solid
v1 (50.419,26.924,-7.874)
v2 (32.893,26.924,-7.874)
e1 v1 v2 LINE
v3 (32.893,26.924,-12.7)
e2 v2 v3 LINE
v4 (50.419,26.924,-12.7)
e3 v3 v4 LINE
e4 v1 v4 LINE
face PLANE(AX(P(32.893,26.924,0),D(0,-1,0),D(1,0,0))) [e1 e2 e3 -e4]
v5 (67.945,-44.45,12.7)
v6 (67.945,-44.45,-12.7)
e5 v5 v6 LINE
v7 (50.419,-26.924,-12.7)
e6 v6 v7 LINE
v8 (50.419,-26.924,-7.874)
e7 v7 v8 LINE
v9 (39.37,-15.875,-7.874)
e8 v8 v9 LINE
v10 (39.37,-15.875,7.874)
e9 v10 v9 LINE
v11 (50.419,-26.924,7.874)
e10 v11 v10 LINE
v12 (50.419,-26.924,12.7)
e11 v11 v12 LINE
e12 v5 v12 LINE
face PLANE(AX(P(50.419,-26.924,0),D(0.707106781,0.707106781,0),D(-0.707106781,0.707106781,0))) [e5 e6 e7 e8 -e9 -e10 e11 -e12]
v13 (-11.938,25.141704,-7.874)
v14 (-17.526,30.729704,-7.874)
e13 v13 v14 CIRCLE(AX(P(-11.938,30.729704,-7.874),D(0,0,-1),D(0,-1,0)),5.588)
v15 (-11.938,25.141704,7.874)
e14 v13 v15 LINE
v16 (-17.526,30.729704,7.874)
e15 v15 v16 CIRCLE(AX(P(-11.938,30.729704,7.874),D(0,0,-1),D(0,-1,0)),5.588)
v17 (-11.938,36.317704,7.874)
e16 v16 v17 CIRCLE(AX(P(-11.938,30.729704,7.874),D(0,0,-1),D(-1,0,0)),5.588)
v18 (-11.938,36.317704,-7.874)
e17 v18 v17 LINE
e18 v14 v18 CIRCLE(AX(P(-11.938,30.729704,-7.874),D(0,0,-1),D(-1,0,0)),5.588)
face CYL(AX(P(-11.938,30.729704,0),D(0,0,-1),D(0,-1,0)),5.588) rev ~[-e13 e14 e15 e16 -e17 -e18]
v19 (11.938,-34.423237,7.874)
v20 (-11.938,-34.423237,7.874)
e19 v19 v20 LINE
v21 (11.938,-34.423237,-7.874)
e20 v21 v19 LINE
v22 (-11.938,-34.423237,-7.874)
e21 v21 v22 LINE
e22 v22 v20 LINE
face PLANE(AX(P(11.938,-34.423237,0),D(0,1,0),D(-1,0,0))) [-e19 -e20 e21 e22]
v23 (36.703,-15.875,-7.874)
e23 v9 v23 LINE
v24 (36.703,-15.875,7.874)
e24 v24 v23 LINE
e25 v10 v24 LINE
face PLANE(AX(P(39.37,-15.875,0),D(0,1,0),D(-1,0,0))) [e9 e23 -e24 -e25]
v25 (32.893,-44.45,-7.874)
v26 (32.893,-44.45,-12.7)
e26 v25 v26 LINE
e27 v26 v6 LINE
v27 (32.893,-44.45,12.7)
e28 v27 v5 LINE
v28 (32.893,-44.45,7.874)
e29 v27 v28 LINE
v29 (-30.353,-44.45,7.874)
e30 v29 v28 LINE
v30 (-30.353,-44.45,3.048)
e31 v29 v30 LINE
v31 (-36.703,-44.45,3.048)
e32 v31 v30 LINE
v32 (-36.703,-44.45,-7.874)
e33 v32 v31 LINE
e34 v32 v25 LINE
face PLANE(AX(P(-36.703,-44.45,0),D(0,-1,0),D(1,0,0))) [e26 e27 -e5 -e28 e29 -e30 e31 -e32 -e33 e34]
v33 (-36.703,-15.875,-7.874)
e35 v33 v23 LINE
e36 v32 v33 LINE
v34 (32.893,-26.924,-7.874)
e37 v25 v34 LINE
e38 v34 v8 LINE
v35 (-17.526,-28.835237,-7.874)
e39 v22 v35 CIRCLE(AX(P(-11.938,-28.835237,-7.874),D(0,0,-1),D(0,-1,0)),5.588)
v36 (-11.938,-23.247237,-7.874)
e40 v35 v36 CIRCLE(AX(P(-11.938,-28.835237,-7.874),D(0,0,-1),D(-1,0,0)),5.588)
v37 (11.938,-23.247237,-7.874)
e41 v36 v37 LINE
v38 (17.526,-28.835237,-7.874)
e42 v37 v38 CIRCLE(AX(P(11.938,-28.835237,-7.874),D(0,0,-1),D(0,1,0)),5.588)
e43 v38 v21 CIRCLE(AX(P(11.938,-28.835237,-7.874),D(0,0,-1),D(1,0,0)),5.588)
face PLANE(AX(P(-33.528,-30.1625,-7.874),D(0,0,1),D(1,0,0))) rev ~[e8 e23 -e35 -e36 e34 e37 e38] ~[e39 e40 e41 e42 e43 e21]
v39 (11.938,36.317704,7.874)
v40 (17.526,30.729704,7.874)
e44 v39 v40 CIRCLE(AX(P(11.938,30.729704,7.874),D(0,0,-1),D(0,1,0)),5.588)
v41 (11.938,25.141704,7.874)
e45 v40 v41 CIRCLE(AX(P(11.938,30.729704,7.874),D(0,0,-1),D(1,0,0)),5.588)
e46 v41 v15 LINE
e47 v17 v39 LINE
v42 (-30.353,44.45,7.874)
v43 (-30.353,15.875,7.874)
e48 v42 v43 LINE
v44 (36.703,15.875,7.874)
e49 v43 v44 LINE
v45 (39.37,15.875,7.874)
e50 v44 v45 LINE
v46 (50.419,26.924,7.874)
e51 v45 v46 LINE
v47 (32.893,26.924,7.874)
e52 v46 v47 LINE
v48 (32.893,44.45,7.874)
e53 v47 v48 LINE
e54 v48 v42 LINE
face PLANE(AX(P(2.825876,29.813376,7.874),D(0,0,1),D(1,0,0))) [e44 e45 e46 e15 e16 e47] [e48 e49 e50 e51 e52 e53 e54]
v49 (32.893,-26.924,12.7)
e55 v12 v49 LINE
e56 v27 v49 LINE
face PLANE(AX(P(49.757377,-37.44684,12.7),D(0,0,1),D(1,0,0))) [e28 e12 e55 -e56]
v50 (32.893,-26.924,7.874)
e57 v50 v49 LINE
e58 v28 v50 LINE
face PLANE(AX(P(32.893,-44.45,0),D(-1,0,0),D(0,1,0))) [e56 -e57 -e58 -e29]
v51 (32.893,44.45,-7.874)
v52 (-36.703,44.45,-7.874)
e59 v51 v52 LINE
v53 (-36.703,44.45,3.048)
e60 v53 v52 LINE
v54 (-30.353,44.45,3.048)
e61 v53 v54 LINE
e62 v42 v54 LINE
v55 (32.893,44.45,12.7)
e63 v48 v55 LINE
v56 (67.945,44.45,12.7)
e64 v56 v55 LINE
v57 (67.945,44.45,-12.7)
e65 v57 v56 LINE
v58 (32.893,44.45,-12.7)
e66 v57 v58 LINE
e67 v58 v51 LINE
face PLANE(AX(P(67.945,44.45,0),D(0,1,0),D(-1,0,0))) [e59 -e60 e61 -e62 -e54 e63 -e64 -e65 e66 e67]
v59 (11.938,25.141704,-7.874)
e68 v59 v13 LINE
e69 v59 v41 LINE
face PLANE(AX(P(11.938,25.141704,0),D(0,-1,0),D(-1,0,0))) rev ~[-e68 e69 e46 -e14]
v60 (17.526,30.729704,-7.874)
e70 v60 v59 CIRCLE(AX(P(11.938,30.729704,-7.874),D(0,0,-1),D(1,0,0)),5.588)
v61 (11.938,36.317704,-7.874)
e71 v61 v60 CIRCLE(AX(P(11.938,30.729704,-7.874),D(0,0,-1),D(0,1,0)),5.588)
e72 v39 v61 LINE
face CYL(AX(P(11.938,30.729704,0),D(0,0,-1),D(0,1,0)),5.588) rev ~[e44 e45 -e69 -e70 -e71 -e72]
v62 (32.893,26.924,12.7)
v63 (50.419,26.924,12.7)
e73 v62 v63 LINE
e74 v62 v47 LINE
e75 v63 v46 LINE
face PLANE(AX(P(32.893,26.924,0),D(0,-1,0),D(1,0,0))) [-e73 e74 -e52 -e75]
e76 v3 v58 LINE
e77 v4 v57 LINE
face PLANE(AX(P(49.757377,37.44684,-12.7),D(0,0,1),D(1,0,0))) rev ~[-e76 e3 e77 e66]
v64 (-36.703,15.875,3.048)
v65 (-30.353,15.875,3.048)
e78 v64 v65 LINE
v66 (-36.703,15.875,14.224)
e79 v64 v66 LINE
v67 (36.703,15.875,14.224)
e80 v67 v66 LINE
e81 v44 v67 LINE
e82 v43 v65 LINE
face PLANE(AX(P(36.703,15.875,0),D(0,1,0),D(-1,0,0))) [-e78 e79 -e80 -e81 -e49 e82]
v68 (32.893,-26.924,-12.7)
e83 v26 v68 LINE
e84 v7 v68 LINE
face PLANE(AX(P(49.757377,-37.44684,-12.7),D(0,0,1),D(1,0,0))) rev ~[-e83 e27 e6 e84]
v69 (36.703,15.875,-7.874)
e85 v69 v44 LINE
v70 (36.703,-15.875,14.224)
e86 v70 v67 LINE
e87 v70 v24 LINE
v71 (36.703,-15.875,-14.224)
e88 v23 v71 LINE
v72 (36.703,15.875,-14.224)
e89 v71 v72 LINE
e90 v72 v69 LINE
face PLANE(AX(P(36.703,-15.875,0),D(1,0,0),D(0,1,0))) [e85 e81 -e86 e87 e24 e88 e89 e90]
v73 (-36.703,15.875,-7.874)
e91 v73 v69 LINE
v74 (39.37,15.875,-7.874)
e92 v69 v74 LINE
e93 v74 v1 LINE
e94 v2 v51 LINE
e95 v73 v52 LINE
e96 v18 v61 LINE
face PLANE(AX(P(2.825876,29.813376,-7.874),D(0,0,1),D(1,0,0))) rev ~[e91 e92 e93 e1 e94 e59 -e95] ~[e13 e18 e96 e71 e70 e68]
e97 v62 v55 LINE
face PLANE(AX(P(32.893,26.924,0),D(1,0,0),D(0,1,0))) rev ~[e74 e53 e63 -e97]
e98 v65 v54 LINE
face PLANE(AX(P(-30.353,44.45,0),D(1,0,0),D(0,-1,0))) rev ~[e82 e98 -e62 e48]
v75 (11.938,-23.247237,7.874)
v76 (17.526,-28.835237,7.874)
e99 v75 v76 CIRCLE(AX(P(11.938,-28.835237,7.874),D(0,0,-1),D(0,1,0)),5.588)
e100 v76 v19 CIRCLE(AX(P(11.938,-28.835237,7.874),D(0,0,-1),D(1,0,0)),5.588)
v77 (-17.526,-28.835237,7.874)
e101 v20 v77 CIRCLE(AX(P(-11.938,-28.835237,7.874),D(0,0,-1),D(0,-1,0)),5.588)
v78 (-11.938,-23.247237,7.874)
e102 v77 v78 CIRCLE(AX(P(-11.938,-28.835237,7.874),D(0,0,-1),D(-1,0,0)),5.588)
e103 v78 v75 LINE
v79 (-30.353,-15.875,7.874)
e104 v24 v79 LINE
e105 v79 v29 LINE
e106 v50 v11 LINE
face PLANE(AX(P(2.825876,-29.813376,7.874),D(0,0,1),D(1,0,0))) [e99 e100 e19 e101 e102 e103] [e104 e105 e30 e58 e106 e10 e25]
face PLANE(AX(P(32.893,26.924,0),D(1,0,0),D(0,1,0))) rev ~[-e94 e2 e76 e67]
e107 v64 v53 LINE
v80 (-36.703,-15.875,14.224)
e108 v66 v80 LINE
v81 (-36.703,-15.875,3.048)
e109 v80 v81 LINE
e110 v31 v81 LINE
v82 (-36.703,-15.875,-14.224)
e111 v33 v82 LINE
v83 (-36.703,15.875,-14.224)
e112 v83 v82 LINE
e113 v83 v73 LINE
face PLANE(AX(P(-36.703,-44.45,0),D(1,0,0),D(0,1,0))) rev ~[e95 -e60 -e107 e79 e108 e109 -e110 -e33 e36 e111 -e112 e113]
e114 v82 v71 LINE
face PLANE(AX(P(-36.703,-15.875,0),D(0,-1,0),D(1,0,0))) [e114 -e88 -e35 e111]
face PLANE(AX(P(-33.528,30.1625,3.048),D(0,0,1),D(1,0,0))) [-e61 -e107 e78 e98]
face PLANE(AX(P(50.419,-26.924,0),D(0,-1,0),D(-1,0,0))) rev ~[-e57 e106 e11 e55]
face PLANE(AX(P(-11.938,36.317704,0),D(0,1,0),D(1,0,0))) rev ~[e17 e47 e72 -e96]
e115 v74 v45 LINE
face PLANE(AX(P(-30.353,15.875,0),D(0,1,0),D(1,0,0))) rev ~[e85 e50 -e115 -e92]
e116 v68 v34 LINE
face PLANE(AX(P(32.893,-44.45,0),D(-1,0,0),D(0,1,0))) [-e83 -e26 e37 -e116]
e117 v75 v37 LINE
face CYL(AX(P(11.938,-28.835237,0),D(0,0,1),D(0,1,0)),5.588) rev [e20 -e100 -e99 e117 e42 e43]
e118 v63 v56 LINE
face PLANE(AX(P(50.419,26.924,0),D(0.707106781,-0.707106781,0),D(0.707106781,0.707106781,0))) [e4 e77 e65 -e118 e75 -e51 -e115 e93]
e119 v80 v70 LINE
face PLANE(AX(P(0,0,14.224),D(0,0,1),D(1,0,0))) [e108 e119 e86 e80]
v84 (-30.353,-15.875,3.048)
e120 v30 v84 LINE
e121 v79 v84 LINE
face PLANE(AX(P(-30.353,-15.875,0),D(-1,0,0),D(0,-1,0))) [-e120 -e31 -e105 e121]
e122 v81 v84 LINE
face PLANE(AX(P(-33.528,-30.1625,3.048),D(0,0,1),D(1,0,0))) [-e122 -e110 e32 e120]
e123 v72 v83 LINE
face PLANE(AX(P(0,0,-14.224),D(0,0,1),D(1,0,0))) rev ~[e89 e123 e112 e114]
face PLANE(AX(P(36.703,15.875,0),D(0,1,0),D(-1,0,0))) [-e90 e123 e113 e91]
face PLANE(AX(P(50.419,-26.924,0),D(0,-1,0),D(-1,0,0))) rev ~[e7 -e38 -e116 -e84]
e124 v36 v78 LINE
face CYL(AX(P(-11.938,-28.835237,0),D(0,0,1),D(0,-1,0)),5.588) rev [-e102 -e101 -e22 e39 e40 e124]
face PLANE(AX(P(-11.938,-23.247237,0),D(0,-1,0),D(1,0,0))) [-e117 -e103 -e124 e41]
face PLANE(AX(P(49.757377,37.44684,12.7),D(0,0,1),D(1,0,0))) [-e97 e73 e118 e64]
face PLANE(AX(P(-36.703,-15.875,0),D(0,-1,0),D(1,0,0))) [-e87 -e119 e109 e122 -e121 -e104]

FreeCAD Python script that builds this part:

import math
import FreeCAD as App
import Part
import Sketcher
Q = App.Units.Quantity


def add_polygon(sketch, points):
    """Adds a closed chain of lines whose ends are joined by coincident constraints."""
    first, n = sketch.GeometryCount, len(points)
    for a, b in zip(points, points[1:] + points[:1]):
        sketch.addGeometry(Part.LineSegment(App.Vector(*a, 0), App.Vector(*b, 0)), False)
    for i in range(n):
        sketch.addConstraint(Sketcher.Constraint("Coincident", first + i, 2, first + (i + 1) % n, 1))

doc = App.newDocument("Part")
params = doc.addObject("Spreadsheet::Sheet", "Params")
for row, (alias, value) in enumerate([
    ("sketch1_width", "2.89 in"),
    ("sketch1_height", "1.25 in"),
    ("pad1_length", "1.12 in"),
    ("sketch2_radius", "0.22 in"),
    ("sketch2_width", "0.69 in"),
    ("sketch2_width2", "2.49 in"),
    ("sketch2_width3", "0.94 in"),
    ("sketch2_width4", "2.745 in"),
    ("pad2_length", "0.62 in"),
    ("sketch3_width", "0.25 in"),
    ("sketch3_height", "1.125 in"),
    ("pad3_length", "0.12 in"),
    ("sketch4_width", "0.25 in"),
    ("sketch4_height", "1.125 in"),
    ("pad4_length", "0.31 in"),
    ("sketch5_width", "0.69 in"),
    ("pad5_length", "1 in"),
], start=1):
    params.set(f"A{row}", alias)
    params.set(f"B{row}", "=" + value)
    params.setAlias(f"B{row}", alias)

body = doc.addObject("PartDesign::Body", "Body")

# Sketch on XY plane
sketch1 = body.newObject("Sketcher::SketchObject", "Sketch")
sketch1.AttachmentSupport = (doc.getObject("XY_Plane"), [""])
sketch1.MapMode = "FlatFace"
add_polygon(sketch1, [(37, -16), (37, 16), (-37, 16), (-37, -16)])  # lines 0-3
sketch1.addConstraint([
    Sketcher.Constraint("Vertical", 0),
    Sketcher.Constraint("Horizontal", 1),
    Sketcher.Constraint("Vertical", 2),
    Sketcher.Constraint("Horizontal", 3),
    Sketcher.Constraint("Symmetric", 0, 2, 2, 2, -1, 1),
    Sketcher.Constraint("DistanceX", 1, 2, 1, 1, Q("2.89 in")),
    Sketcher.Constraint("DistanceY", 0, 1, 0, 2, Q("1.25 in")),
])
sketch1.setExpression("Constraints[9]", "Params.sketch1_width")
sketch1.setExpression("Constraints[10]", "Params.sketch1_height")
pad1 = body.newObject("PartDesign::Pad", "Pad")
pad1.Profile = sketch1
pad1.setExpression("Length", "Params.pad1_length")
pad1.Midplane = True

# Sketch on XY plane
sketch2 = body.newObject("Sketcher::SketchObject", "Sketch001")
sketch2.AttachmentSupport = (doc.getObject("XY_Plane"), [""])
sketch2.MapMode = "FlatFace"
add_polygon(sketch2, [(-30, 16), (39, 16), (50, 27), (33, 27), (33, 44), (-30, 44)])  # lines 0-5
sketch2.addGeometry(Part.ArcOfCircle(Part.Circle(App.Vector(12, 31, 0), App.Vector(0, 0, 1), 6), math.radians(0), math.radians(90)), False)  # 6
sketch2.addGeometry(Part.ArcOfCircle(Part.Circle(App.Vector(12, 31, 0), App.Vector(0, 0, 1), 6), math.radians(-90), math.radians(0)), False)  # 7
sketch2.addGeometry(Part.LineSegment(App.Vector(12, 25, 0), App.Vector(-12, 25, 0)), False)  # 8
sketch2.addGeometry(Part.ArcOfCircle(Part.Circle(App.Vector(-12, 31, 0), App.Vector(0, 0, 1), 6), math.radians(180), math.radians(270)), False)  # 9
sketch2.addGeometry(Part.ArcOfCircle(Part.Circle(App.Vector(-12, 31, 0), App.Vector(0, 0, 1), 6), math.radians(90), math.radians(180)), False)  # 10
sketch2.addGeometry(Part.LineSegment(App.Vector(-12, 36, 0), App.Vector(12, 36, 0)), False)  # 11
add_polygon(sketch2, [(-30, -44), (33, -44), (33, -27), (50, -27), (39, -16), (-30, -16)])  # lines 12-17
sketch2.addGeometry(Part.ArcOfCircle(Part.Circle(App.Vector(12, -29, 0), App.Vector(0, 0, 1), 6), math.radians(0), math.radians(90)), False)  # 18
sketch2.addGeometry(Part.ArcOfCircle(Part.Circle(App.Vector(12, -29, 0), App.Vector(0, 0, 1), 6), math.radians(-90), math.radians(0)), False)  # 19
sketch2.addGeometry(Part.LineSegment(App.Vector(12, -34, 0), App.Vector(-12, -34, 0)), False)  # 20
sketch2.addGeometry(Part.ArcOfCircle(Part.Circle(App.Vector(-12, -29, 0), App.Vector(0, 0, 1), 6), math.radians(180), math.radians(270)), False)  # 21
sketch2.addGeometry(Part.ArcOfCircle(Part.Circle(App.Vector(-12, -29, 0), App.Vector(0, 0, 1), 6), math.radians(90), math.radians(180)), False)  # 22
sketch2.addGeometry(Part.LineSegment(App.Vector(-12, -23, 0), App.Vector(12, -23, 0)), False)  # 23
sketch2.addConstraint([
    Sketcher.Constraint("Tangent", 6, 1, 7, 2),
    Sketcher.Constraint("Tangent", 7, 1, 8, 1),
    Sketcher.Constraint("Tangent", 8, 2, 9, 2),
    Sketcher.Constraint("Tangent", 9, 1, 10, 2),
    Sketcher.Constraint("Tangent", 10, 1, 11, 1),
    Sketcher.Constraint("Tangent", 11, 2, 6, 2),
    Sketcher.Constraint("Tangent", 18, 1, 19, 2),
    Sketcher.Constraint("Tangent", 19, 1, 20, 1),
    Sketcher.Constraint("Tangent", 20, 2, 21, 2),
    Sketcher.Constraint("Tangent", 21, 1, 22, 2),
    Sketcher.Constraint("Tangent", 22, 1, 23, 1),
    Sketcher.Constraint("Tangent", 23, 2, 18, 2),
    Sketcher.Constraint("Horizontal", 0),
    Sketcher.Constraint("Horizontal", 2),
    Sketcher.Constraint("Vertical", 3),
    Sketcher.Constraint("Horizontal", 4),
    Sketcher.Constraint("Vertical", 5),
    Sketcher.Constraint("Horizontal", 8),
    Sketcher.Constraint("Horizontal", 11),
    Sketcher.Constraint("Horizontal", 12),
    Sketcher.Constraint("Vertical", 13),
    Sketcher.Constraint("Horizontal", 14),
    Sketcher.Constraint("Horizontal", 16),
    Sketcher.Constraint("Vertical", 17),
    Sketcher.Constraint("Horizontal", 20),
    Sketcher.Constraint("Horizontal", 23),
    Sketcher.Constraint("Equal", 6, 7),
    Sketcher.Constraint("Equal", 7, 9),
    Sketcher.Constraint("Equal", 10, 18),
    Sketcher.Constraint("Equal", 18, 19),
    Sketcher.Constraint("Equal", 19, 21),
    Sketcher.Constraint("Symmetric", 6, 1, 9, 1, -2),
    Sketcher.Constraint("Symmetric", 18, 1, 21, 1, -2),
    Sketcher.Constraint("Symmetric", 3, 2, 12, 2, -1),
    Sketcher.Constraint("Symmetric", 1, 2, 14, 2, -1),
    Sketcher.Constraint("Symmetric", 0, 2, 15, 2, -1),
    Sketcher.Constraint("Perpendicular", 1, 15),
    Sketcher.Constraint("Horizontal", 10, 3, 6, 1),
    Sketcher.Constraint("Horizontal", 22, 3, 18, 1),
    Sketcher.Constraint("Vertical", 7, 3, 18, 3),
    Sketcher.Constraint("Vertical", 5, 2, 16, 2),
    Sketcher.Constraint("Equal", 14, 3),
    Sketcher.Constraint("Radius", 6, Q("0.22 in")),
    Sketcher.Constraint("DistanceX", 2, 2, 2, 1, Q("0.69 in")),
    Sketcher.Constraint("DistanceX", 4, 2, 4, 1, Q("2.49 in")),
    Sketcher.Constraint("DistanceX", 8, 2, 8, 1, Q("0.94 in")),
    Sketcher.Constraint("DistanceX", 0, 1, 0, 2, Q("2.745 in")),
    Sketcher.Constraint("DistanceX", -1, 1, 0, 2, Q("1.55 in")),
    Sketcher.Constraint("DistanceY", -1, 1, 1, 2, Q("1.06 in")),
    Sketcher.Constraint("DistanceY", 18, 3, 6, 3, 59.564941),
    Sketcher.Constraint("DistanceY", -1, 1, 6, 3, 30.729704),
])
sketch2.setExpression("Constraints[54]", "Params.sketch2_radius")
sketch2.setExpression("Constraints[55]", "Params.sketch2_width")
sketch2.setExpression("Constraints[56]", "Params.sketch2_width2")
sketch2.setExpression("Constraints[57]", "Params.sketch2_width3")
sketch2.setExpression("Constraints[58]", "Params.sketch2_width4")
pad2 = body.newObject("PartDesign::Pad", "Pad001")
pad2.Profile = sketch2
pad2.setExpression("Length", "Params.pad2_length")
pad2.Midplane = True

# Sketch on XY plane
sketch3 = body.newObject("Sketcher::SketchObject", "Sketch002")
sketch3.AttachmentSupport = (doc.getObject("XY_Plane"), [""])
sketch3.MapMode = "FlatFace"
add_polygon(sketch3, [(-37, 44), (-37, 16), (-30, 16), (-30, 44)])  # lines 0-3
add_polygon(sketch3, [(-37, -16), (-37, -44), (-30, -44), (-30, -16)])  # lines 4-7
sketch3.addConstraint([
    Sketcher.Constraint("Vertical", 0),
    Sketcher.Constraint("Horizontal", 1),
    Sketcher.Constraint("Vertical", 2),
    Sketcher.Constraint("Horizontal", 3),
    Sketcher.Constraint("Vertical", 4),
    Sketcher.Constraint("Horizontal", 5),
    Sketcher.Constraint("Vertical", 6),
    Sketcher.Constraint("Horizontal", 7),
    Sketcher.Constraint("Symmetric", 3, 2, 4, 2, -1),
    Sketcher.Constraint("Symmetric", 1, 2, 6, 2, -1),
    Sketcher.Constraint("DistanceX", 1, 1, 1, 2, Q("0.25 in")),
    Sketcher.Constraint("DistanceY", 4, 2, 3, 2, Q("3.5 in")),
    Sketcher.Constraint("DistanceY", 0, 2, 0, 1, Q("1.125 in")),
    Sketcher.Constraint("DistanceX", 0, 2, -1, 1, Q("1.445 in")),
])
sketch3.setExpression("Constraints[18]", "Params.sketch3_width")
sketch3.setExpression("Constraints[20]", "Params.sketch3_height")
pad3 = body.newObject("PartDesign::Pad", "Pad002")
pad3.Profile = sketch3
pad3.setExpression("Length", "Params.pad3_length")

# Sketch on XY plane
sketch4 = body.newObject("Sketcher::SketchObject", "Sketch003")
sketch4.AttachmentSupport = (doc.getObject("XY_Plane"), [""])
sketch4.MapMode = "FlatFace"
add_polygon(sketch4, [(-37, -16), (-37, -44), (-30, -44), (-30, -16)])  # lines 0-3
add_polygon(sketch4, [(-37, 44), (-37, 16), (-30, 16), (-30, 44)])  # lines 4-7
sketch4.addConstraint([
    Sketcher.Constraint("Vertical", 0),
    Sketcher.Constraint("Horizontal", 1),
    Sketcher.Constraint("Vertical", 2),
    Sketcher.Constraint("Horizontal", 3),
    Sketcher.Constraint("Vertical", 4),
    Sketcher.Constraint("Horizontal", 5),
    Sketcher.Constraint("Vertical", 6),
    Sketcher.Constraint("Horizontal", 7),
    Sketcher.Constraint("Symmetric", 3, 2, 4, 2, -1),
    Sketcher.Constraint("Symmetric", 1, 2, 6, 2, -1),
    Sketcher.Constraint("DistanceX", 1, 1, 1, 2, Q("0.25 in")),
    Sketcher.Constraint("DistanceY", 1, 2, 6, 2, Q("3.5 in")),
    Sketcher.Constraint("DistanceY", 0, 2, 0, 1, Q("1.125 in")),
    Sketcher.Constraint("DistanceX", 0, 2, -1, 1, Q("1.445 in")),
])
sketch4.setExpression("Constraints[18]", "Params.sketch4_width")
sketch4.setExpression("Constraints[20]", "Params.sketch4_height")
pad4 = body.newObject("PartDesign::Pad", "Pad003")
pad4.Profile = sketch4
pad4.setExpression("Length", "Params.pad4_length")
pad4.Reversed = True

# Sketch on XY plane
sketch5 = body.newObject("Sketcher::SketchObject", "Sketch004")
sketch5.AttachmentSupport = (doc.getObject("XY_Plane"), [""])
sketch5.MapMode = "FlatFace"
add_polygon(sketch5, [(68, -44), (50, -27), (33, -27), (33, -44)])  # lines 0-3
add_polygon(sketch5, [(50, 27), (68, 44), (33, 44), (33, 27)])  # lines 4-7
sketch5.addConstraint([
    Sketcher.Constraint("Horizontal", 1),
    Sketcher.Constraint("Vertical", 2),
    Sketcher.Constraint("Horizontal", 3),
    Sketcher.Constraint("Horizontal", 5),
    Sketcher.Constraint("Vertical", 6),
    Sketcher.Constraint("Horizontal", 7),
    Sketcher.Constraint("Symmetric", 3, 2, 4, 2, -1),
    Sketcher.Constraint("Symmetric", 1, 2, 6, 2, -1),
    Sketcher.Constraint("Perpendicular", 0, 4),
    Sketcher.Constraint("Vertical", 0, 2, 7, 2),
    Sketcher.Constraint("Equal", 7, 2),
    Sketcher.Constraint("DistanceX", 1, 2, 1, 1, Q("0.69 in")),
    Sketcher.Constraint("DistanceY", 3, 2, 4, 2, Q("3.5 in")),
    Sketcher.Constraint("DistanceX", -1, 1, 0, 2, Q("1.985 in")),
])
sketch5.setExpression("Constraints[19]", "Params.sketch5_width")
pad5 = body.newObject("PartDesign::Pad", "Pad004")
pad5.Profile = sketch5
pad5.setExpression("Length", "Params.pad5_length")
pad5.Midplane = True

doc.recompute()
